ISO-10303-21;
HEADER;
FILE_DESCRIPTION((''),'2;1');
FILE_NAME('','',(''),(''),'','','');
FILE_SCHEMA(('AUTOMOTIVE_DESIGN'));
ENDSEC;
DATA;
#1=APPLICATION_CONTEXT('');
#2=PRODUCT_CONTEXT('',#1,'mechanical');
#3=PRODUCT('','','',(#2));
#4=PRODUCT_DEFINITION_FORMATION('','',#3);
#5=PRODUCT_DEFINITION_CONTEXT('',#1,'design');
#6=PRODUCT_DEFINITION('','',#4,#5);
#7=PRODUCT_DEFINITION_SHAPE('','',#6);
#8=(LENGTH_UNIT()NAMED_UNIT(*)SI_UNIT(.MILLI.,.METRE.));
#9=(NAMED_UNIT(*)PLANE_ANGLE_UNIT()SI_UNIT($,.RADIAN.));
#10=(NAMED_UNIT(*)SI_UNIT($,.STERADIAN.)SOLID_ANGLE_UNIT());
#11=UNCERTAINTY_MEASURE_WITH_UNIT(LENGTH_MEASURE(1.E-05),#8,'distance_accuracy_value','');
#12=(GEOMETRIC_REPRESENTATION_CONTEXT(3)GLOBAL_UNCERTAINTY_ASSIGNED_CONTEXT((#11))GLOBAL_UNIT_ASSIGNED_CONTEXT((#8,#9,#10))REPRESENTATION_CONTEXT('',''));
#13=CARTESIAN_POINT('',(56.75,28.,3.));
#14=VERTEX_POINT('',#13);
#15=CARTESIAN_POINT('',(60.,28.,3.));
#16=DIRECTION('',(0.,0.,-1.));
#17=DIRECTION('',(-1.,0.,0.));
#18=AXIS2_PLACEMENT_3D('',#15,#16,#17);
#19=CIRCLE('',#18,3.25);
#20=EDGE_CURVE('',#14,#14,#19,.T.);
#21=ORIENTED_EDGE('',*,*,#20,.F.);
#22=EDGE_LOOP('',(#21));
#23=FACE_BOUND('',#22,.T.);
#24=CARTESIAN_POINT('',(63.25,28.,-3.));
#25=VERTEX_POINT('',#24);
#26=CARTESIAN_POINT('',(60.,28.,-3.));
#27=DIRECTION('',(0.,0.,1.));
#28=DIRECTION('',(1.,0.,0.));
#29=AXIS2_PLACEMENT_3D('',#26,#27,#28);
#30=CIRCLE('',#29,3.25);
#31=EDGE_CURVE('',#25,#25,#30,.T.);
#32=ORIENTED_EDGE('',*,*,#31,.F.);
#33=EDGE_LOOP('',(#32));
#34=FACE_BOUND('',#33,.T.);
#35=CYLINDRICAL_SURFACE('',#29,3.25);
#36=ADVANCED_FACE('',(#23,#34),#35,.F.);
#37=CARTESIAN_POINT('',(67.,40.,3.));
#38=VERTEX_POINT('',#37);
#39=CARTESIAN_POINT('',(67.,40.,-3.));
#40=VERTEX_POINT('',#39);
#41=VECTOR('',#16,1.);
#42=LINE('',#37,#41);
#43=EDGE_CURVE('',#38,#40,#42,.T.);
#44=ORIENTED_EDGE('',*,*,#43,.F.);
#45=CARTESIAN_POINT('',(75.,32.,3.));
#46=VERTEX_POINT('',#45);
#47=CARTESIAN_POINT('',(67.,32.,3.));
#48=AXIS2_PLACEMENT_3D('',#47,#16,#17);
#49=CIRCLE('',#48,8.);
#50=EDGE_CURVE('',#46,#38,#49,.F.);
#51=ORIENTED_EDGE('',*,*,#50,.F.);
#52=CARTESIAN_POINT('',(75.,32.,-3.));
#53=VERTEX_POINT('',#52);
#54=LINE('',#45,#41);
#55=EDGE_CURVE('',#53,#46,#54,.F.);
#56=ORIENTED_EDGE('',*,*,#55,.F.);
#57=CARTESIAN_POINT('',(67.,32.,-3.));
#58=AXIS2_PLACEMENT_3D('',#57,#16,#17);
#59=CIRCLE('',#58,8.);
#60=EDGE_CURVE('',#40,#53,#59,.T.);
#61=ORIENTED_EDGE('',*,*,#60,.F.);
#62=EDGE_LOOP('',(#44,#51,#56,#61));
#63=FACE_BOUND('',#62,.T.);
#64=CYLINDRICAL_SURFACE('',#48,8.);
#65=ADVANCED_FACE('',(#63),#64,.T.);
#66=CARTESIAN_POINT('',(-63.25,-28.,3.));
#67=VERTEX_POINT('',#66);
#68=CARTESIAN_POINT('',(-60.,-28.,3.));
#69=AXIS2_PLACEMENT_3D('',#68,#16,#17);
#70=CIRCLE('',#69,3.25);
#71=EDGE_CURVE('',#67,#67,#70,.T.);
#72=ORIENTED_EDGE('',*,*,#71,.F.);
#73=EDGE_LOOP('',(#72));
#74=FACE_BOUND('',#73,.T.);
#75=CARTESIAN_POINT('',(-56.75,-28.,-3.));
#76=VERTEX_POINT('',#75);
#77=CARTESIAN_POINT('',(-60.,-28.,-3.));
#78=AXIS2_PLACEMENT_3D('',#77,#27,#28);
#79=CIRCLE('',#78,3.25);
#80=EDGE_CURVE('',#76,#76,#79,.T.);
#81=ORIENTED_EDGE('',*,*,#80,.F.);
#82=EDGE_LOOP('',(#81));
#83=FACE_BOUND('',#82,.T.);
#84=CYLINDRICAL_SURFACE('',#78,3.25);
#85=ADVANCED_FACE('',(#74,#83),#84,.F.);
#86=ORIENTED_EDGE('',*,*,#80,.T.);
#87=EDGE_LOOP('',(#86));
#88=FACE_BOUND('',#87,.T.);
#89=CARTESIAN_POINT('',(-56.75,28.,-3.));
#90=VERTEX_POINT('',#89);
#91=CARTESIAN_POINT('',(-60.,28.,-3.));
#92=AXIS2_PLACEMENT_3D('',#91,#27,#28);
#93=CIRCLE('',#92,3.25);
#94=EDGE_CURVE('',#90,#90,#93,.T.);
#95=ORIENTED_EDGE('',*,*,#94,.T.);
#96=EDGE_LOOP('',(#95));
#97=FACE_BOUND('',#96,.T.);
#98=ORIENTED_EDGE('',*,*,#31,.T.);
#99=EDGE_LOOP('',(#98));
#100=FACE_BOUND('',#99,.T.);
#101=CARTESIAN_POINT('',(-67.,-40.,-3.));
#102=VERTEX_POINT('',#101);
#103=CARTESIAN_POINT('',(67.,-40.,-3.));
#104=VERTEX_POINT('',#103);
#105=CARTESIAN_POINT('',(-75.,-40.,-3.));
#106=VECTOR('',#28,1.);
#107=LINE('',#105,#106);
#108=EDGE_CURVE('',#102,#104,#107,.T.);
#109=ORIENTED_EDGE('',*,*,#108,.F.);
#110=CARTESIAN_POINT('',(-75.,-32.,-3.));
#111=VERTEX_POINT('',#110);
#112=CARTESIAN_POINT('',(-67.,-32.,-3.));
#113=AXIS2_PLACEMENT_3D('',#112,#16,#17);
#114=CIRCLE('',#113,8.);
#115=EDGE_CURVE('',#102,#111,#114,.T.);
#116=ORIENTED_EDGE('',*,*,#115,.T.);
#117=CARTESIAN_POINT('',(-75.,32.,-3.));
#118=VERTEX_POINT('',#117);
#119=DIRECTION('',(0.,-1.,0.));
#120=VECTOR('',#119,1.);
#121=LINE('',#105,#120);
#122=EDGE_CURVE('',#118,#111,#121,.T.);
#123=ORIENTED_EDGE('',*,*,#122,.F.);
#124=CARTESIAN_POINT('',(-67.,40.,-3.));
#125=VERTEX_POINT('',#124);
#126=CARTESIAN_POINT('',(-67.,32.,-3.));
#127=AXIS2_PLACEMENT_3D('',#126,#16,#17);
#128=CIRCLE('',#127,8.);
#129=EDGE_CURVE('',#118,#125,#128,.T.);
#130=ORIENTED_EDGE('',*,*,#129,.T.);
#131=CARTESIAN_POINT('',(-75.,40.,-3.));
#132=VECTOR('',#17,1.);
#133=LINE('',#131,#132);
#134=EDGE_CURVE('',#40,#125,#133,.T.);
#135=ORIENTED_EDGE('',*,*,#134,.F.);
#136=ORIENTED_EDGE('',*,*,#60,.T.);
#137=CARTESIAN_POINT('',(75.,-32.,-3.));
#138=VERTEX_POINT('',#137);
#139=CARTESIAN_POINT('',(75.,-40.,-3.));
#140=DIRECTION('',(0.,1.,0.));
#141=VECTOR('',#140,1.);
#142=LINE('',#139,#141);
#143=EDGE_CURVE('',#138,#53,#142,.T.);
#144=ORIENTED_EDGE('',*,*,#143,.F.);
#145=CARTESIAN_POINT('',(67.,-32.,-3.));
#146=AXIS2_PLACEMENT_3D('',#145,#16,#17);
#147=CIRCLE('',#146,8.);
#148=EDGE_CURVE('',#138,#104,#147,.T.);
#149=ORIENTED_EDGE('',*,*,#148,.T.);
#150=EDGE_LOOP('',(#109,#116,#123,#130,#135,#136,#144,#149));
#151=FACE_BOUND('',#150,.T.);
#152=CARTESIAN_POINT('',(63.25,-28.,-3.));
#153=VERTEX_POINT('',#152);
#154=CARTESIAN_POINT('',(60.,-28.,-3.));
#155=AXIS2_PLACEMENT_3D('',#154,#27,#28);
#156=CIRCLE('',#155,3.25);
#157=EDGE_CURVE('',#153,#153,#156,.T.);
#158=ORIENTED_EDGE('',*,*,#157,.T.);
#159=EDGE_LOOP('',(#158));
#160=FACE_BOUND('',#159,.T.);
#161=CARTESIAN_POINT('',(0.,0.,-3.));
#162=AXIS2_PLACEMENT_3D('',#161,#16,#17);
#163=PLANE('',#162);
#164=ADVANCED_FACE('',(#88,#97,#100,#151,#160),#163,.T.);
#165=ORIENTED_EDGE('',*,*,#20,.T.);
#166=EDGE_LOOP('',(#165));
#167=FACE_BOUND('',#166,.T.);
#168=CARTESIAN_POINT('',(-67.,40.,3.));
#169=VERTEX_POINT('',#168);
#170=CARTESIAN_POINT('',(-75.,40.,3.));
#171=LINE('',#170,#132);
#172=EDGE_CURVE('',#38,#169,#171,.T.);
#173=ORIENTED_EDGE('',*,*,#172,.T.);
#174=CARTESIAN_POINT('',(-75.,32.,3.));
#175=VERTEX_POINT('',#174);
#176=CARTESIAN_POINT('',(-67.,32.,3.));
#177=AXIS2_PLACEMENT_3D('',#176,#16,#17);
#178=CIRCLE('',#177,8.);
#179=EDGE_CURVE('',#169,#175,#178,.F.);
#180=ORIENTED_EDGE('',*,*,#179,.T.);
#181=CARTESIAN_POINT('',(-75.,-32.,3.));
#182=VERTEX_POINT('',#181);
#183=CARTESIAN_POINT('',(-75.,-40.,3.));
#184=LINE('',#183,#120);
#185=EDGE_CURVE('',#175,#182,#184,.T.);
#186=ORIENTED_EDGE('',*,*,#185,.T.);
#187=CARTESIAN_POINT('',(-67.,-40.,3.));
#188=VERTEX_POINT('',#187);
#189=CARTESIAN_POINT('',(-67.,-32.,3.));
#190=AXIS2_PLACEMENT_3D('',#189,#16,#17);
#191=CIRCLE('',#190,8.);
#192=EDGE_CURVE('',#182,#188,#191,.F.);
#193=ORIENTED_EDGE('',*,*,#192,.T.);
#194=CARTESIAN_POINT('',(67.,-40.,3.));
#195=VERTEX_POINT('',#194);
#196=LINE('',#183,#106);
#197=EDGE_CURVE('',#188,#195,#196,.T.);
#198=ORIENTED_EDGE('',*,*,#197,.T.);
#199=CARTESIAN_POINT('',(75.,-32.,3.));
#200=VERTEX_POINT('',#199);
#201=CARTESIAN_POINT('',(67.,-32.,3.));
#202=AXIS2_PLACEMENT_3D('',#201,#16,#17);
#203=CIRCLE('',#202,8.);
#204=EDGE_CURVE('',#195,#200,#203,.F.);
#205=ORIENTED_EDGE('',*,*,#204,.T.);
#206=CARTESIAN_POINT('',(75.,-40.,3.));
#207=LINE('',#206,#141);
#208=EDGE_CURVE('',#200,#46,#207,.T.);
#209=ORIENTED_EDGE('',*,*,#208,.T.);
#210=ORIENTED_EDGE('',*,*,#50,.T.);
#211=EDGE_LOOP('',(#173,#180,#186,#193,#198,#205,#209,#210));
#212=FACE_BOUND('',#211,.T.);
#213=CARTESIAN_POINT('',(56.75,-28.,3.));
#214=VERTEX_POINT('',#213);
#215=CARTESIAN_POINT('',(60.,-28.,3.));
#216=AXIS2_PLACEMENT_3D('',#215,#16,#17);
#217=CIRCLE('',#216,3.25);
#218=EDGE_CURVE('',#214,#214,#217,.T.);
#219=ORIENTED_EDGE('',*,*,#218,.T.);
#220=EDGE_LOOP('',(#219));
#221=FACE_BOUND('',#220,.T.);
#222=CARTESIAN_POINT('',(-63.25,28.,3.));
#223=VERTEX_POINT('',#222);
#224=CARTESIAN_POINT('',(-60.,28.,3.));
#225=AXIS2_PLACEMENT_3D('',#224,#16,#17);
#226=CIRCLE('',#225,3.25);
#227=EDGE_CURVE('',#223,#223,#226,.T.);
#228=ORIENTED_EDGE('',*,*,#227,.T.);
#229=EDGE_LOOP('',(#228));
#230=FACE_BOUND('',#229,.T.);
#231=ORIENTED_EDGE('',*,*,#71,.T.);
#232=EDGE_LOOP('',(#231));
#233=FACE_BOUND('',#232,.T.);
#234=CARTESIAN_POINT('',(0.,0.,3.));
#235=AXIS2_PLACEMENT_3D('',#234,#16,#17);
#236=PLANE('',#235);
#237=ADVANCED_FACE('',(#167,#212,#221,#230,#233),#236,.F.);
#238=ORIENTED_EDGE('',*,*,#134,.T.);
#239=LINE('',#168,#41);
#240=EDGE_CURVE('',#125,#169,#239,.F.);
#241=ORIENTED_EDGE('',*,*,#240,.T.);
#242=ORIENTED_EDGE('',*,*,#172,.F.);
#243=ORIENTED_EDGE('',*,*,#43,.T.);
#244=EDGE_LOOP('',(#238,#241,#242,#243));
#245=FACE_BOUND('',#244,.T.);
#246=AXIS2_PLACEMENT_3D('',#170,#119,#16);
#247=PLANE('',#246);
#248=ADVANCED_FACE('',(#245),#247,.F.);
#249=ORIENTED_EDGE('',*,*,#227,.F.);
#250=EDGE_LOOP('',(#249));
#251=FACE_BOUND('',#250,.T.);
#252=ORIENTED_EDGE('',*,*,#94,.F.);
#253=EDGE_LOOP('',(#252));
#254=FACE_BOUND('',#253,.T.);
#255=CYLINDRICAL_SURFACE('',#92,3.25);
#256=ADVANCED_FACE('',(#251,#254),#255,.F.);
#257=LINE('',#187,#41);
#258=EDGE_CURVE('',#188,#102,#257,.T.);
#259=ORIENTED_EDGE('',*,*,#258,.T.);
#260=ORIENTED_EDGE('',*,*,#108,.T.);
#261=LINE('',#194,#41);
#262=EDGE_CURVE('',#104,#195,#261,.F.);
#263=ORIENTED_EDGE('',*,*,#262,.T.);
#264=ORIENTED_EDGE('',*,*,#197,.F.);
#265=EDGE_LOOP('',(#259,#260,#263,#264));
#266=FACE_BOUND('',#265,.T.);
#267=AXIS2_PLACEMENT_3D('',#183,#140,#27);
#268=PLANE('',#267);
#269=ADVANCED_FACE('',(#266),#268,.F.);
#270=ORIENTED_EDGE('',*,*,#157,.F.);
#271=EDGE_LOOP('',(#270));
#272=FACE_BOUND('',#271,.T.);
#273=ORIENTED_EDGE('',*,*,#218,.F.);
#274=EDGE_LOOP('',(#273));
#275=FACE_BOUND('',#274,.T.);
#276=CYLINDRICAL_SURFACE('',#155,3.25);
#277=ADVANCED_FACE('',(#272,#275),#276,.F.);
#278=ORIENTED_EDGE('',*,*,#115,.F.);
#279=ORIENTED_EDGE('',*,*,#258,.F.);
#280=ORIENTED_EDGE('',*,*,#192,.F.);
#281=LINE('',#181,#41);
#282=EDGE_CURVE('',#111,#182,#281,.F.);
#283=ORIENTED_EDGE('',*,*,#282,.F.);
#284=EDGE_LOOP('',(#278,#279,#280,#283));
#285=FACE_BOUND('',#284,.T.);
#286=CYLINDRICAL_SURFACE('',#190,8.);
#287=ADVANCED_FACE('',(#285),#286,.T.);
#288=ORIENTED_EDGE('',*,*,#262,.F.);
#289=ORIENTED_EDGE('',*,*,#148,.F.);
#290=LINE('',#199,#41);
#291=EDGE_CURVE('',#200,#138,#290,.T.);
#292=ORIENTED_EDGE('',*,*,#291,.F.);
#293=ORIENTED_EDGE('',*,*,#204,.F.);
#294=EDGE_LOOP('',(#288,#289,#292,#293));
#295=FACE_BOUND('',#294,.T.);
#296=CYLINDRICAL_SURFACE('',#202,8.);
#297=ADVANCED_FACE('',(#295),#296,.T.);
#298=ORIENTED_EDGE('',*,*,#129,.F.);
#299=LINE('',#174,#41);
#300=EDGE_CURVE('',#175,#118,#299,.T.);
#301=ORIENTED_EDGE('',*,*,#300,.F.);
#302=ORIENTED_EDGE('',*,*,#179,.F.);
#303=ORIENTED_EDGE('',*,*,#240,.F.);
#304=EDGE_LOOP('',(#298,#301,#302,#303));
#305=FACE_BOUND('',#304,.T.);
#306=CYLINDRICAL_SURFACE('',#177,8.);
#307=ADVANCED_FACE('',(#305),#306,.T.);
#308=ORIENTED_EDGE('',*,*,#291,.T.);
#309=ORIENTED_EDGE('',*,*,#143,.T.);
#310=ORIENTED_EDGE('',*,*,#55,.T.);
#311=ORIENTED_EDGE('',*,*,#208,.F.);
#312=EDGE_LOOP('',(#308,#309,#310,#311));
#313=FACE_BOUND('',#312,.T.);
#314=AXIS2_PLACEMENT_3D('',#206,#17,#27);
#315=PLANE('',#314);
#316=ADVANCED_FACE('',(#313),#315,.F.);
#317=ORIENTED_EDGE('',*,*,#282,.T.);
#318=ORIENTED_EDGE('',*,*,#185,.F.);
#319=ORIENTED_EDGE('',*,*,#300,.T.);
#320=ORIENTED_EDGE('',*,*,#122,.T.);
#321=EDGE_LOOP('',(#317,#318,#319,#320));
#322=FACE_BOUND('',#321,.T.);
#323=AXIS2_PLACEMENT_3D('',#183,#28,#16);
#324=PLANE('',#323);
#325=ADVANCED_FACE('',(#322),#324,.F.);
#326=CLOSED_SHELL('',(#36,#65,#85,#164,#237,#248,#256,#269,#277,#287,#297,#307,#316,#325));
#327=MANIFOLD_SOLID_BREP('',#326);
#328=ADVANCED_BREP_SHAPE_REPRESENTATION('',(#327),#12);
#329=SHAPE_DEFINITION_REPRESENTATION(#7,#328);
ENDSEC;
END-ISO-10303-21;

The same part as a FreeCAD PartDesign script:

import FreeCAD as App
import Part
import Sketcher

V = App.Vector


def edges_at(feature, points):
    """Names of the edges that pass closest to the given points."""
    edges = feature.Shape.Edges
    near = lambda p: min(range(len(edges)), key=lambda i: edges[i].distToShape(Part.Vertex(*p))[0])
    return sorted({f"Edge{near(p) + 1}" for p in points})

doc = App.newDocument("Part")
params = doc.addObject("Spreadsheet::Sheet", "Params")
for row, (alias, value) in enumerate([
    ("sketch1_width", "150 mm"),
    ("sketch1_height", "80 mm"),
    ("pad1_length", "6 mm"),
    ("sketch2_diameter", "6.5 mm"),
    ("fillet_radius", "8 mm"),
], start=1):
    params.set(f"A{row}", alias)
    params.set(f"B{row}", "=" + value)
    params.setAlias(f"B{row}", alias)

body = doc.addObject("PartDesign::Body", "Body")

sketch1 = doc.addObject("Sketcher::SketchObject", "Sketch")
body.addObject(sketch1)
sketch1.AttachmentSupport = (doc.XY_Plane, [""])
sketch1.MapMode = "FlatFace"
sketch1.addGeometry(Part.LineSegment(V(-75, 40, 0), V(-75, -40, 0)), False)
sketch1.addGeometry(Part.LineSegment(V(-75, -40, 0), V(75, -40, 0)), False)
sketch1.addGeometry(Part.LineSegment(V(75, -40, 0), V(75, 40, 0)), False)
sketch1.addGeometry(Part.LineSegment(V(75, 40, 0), V(-75, 40, 0)), False)
sketch1.addConstraint(Sketcher.Constraint("Coincident", 0, 2, 1, 1))
sketch1.addConstraint(Sketcher.Constraint("Coincident", 1, 2, 2, 1))
sketch1.addConstraint(Sketcher.Constraint("Coincident", 2, 2, 3, 1))
sketch1.addConstraint(Sketcher.Constraint("Coincident", 3, 2, 0, 1))
sketch1.addConstraint(Sketcher.Constraint("Vertical", 0))
sketch1.addConstraint(Sketcher.Constraint("Horizontal", 1))
sketch1.addConstraint(Sketcher.Constraint("Vertical", 2))
sketch1.addConstraint(Sketcher.Constraint("Horizontal", 3))
sketch1.addConstraint(Sketcher.Constraint("Symmetric", 0, 2, 2, 2, -1, 1))
sketch1.addConstraint(Sketcher.Constraint("DistanceX", 1, 1, 1, 2, 150.0))
sketch1.addConstraint(Sketcher.Constraint("DistanceY", 0, 2, 0, 1, 80.0))
sketch1.setExpression("Constraints[9]", "Params.sketch1_width")
sketch1.setExpression("Constraints[10]", "Params.sketch1_height")
pad1 = doc.addObject("PartDesign::Pad", "Pad")
body.addObject(pad1)
pad1.Profile = sketch1
pad1.setExpression("Length", "Params.pad1_length")
pad1.Midplane = True

sketch2 = doc.addObject("Sketcher::SketchObject", "Sketch001")
body.addObject(sketch2)
sketch2.AttachmentSupport = (doc.XY_Plane, [""])
sketch2.MapMode = "FlatFace"
sketch2.AttachmentOffset = App.Placement(V(0, 0, 3), App.Rotation())
sketch2.addGeometry(Part.Circle(V(-60, 28, 0), V(0, 0, 1), 3.25), False)
sketch2.addGeometry(Part.Circle(V(-60, -28, 0), V(0, 0, 1), 3.25), False)
sketch2.addGeometry(Part.Circle(V(60, -28, 0), V(0, 0, 1), 3.25), False)
sketch2.addGeometry(Part.Circle(V(60, 28, 0), V(0, 0, 1), 3.25), False)
sketch2.addConstraint(Sketcher.Constraint("Equal", 0, 1))
sketch2.addConstraint(Sketcher.Constraint("Equal", 1, 2))
sketch2.addConstraint(Sketcher.Constraint("Equal", 2, 3))
sketch2.addConstraint(Sketcher.Constraint("Symmetric", 0, 3, 2, 3, -1, 1))
sketch2.addConstraint(Sketcher.Constraint("Symmetric", 1, 3, 3, 3, -1, 1))
sketch2.addConstraint(Sketcher.Constraint("Symmetric", 1, 3, 2, 3, -2))
sketch2.addConstraint(Sketcher.Constraint("Diameter", 0, 6.5))
sketch2.addConstraint(Sketcher.Constraint("DistanceX", 0, 3, -1, 1, 60.0))
sketch2.addConstraint(Sketcher.Constraint("DistanceY", -1, 1, 0, 3, 28.0))
sketch2.setExpression("Constraints[6]", "Params.sketch2_diameter")
pocket1 = doc.addObject("PartDesign::Pocket", "Pocket")
body.addObject(pocket1)
pocket1.Profile = sketch2
pocket1.Type = "ThroughAll"
pocket1.Midplane = True
doc.recompute()

fillet = doc.addObject("PartDesign::Fillet", "Fillet")
body.addObject(fillet)
fillet.Base = (pocket1, edges_at(pocket1, [
    (75, -40, 0),
    (-75, -40, 0),
    (-75, 40, 0),
    (75, 40, 0),
]))
fillet.setExpression("Radius", "Params.fillet_radius")

doc.recompute()
